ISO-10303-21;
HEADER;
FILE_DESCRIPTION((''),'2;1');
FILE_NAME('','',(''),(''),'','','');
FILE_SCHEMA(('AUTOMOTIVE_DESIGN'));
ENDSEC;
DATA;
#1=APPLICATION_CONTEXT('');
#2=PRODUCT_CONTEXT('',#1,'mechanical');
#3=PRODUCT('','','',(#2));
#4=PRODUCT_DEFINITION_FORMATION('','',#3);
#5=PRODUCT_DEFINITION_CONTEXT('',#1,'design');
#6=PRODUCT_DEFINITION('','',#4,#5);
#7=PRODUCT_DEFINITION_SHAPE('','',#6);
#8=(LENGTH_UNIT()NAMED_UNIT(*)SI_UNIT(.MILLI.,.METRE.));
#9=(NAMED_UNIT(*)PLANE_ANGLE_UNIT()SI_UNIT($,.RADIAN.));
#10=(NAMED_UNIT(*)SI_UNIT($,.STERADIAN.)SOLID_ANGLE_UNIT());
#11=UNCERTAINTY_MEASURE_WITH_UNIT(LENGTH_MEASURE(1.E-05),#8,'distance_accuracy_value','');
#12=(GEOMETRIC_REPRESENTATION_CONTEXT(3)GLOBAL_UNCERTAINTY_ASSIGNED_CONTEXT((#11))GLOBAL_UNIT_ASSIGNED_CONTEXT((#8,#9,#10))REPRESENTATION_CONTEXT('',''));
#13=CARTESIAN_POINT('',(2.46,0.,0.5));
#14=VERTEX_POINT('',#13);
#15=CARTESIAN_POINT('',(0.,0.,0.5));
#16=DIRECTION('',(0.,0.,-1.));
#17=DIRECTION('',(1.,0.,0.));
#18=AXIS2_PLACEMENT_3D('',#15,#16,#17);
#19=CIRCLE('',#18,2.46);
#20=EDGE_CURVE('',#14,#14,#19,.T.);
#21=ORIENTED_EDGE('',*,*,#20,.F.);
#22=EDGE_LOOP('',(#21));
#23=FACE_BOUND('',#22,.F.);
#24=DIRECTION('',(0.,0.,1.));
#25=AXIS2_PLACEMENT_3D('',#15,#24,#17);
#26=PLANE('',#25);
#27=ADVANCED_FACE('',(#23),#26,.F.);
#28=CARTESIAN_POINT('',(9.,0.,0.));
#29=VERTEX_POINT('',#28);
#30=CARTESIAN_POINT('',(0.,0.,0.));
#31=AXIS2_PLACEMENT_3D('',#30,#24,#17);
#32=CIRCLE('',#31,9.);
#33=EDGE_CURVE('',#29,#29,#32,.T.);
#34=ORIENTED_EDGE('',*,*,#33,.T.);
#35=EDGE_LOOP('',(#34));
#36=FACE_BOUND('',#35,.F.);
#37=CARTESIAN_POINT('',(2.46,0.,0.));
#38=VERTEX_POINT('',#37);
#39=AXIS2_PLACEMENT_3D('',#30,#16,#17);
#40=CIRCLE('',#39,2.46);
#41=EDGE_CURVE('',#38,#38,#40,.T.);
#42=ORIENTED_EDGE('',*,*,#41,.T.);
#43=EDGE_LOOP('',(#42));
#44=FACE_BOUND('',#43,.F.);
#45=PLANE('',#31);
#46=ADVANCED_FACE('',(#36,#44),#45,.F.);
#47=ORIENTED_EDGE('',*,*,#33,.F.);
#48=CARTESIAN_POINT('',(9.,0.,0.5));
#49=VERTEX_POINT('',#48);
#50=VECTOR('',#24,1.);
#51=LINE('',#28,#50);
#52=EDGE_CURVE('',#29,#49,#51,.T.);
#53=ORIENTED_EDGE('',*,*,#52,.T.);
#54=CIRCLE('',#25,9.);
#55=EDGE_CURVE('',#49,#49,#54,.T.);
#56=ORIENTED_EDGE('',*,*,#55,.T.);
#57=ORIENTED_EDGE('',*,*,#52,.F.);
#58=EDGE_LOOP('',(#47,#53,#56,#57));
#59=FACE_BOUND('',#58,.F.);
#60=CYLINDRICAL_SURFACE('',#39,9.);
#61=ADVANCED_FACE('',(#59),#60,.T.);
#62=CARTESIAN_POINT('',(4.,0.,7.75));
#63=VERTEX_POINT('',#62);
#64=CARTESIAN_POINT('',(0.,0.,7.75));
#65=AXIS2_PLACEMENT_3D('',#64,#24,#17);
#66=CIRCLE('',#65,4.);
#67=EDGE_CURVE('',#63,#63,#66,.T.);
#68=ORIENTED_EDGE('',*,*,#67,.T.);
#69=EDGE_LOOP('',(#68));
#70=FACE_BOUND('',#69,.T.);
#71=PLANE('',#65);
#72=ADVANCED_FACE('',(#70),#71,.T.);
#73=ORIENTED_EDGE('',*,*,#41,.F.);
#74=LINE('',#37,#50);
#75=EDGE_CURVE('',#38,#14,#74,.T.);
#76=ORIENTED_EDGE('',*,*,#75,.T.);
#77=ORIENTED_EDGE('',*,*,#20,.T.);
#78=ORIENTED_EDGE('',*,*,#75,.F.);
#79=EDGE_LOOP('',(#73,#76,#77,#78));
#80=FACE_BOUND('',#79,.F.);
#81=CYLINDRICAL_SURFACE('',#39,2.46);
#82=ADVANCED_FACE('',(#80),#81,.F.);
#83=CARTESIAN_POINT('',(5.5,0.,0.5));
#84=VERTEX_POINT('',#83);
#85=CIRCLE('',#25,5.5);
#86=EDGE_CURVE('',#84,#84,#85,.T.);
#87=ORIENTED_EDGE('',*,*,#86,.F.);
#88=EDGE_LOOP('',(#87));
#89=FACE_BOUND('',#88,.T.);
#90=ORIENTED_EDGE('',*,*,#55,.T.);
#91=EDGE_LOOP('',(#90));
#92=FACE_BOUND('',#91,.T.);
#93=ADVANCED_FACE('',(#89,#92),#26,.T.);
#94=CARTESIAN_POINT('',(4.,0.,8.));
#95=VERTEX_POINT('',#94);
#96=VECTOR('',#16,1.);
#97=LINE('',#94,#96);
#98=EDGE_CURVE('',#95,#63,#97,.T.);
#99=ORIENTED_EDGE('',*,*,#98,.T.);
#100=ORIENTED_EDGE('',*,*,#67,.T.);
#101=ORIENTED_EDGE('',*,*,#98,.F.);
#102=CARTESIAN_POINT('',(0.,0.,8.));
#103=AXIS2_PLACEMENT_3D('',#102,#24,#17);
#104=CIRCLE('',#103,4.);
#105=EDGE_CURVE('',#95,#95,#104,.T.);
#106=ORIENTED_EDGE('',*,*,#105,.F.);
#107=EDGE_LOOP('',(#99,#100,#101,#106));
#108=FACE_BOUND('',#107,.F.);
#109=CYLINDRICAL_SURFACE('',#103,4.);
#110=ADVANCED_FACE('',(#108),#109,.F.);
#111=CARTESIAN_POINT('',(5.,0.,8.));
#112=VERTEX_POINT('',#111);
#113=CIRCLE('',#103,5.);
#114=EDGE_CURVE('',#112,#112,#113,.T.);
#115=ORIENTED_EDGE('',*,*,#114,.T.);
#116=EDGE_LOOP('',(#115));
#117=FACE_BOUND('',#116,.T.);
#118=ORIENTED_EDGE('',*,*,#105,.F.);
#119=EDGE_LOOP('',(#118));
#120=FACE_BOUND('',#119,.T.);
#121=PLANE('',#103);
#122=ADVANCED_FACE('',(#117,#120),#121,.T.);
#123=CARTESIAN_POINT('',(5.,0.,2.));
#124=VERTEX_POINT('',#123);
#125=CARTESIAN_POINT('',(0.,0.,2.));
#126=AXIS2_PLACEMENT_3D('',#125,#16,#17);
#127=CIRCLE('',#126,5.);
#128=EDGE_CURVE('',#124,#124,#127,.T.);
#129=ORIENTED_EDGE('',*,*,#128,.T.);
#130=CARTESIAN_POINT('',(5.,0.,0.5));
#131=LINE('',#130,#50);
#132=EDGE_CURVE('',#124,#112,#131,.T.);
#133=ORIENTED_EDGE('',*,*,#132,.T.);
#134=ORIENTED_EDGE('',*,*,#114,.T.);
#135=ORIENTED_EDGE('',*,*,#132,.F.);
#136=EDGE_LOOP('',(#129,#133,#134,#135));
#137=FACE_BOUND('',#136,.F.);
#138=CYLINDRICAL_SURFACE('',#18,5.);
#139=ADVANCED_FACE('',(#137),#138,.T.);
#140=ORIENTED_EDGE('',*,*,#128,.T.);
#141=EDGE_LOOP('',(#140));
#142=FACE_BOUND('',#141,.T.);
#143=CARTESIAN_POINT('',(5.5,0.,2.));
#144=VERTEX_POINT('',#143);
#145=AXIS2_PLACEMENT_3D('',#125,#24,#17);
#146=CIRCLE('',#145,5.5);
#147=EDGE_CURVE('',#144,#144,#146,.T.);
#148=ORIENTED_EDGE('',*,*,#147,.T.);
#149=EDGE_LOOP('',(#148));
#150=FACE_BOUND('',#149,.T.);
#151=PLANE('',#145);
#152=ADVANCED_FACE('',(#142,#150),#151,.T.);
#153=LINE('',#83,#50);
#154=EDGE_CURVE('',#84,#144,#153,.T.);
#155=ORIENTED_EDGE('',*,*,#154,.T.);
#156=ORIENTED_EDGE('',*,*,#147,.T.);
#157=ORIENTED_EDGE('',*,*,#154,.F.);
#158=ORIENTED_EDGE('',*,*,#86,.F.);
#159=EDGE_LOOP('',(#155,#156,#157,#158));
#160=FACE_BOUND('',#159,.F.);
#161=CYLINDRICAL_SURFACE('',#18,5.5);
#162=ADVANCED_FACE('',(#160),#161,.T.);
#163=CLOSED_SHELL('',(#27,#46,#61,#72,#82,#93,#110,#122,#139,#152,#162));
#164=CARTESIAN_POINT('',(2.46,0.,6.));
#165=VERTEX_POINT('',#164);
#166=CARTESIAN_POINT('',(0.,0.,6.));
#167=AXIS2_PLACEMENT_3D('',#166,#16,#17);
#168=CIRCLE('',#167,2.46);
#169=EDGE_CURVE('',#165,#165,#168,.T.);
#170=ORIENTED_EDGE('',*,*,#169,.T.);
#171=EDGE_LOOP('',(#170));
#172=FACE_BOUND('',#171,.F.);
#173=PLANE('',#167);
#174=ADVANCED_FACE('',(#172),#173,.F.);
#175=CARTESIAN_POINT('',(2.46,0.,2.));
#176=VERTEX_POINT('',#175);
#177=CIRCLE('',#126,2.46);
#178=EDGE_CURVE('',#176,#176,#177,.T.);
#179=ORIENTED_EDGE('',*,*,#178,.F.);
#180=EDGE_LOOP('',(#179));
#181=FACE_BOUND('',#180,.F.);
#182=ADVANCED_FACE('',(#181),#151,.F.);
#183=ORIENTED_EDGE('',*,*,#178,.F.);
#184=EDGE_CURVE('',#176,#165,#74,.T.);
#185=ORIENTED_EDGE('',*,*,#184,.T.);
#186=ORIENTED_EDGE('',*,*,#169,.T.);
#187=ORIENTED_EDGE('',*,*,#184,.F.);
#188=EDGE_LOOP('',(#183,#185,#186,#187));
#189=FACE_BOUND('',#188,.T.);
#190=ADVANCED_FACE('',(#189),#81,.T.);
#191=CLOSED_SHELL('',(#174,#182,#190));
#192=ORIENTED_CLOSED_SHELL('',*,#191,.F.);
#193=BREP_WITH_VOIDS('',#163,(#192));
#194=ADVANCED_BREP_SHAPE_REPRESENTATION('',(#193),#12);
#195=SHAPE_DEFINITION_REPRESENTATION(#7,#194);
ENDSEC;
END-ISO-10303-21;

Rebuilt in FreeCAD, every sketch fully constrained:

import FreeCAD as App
import Part
import Sketcher

V = App.Vector

doc = App.newDocument("Part")
params = doc.addObject("Spreadsheet::Sheet", "Params")
for row, (alias, value) in enumerate([
    ("sketch1_diameter", "18 mm"),
    ("pad1_length", "0.5 mm"),
    ("sketch2_diameter", "10 mm"),
    ("pad2_length", "8 mm"),
    ("sketch3_diameter", "4.92 mm"),
    ("pocket1_length", "6 mm"),
    ("sketch4_diameter", "10 mm"),
    ("pocket2_length", "0.5 mm"),
    ("sketch5_diameter", "11 mm"),
    ("pad3_length", "1.5 mm"),
    ("sketch6_diameter", "8 mm"),
    ("pocket3_length", "0.25 mm"),
], start=1):
    params.set(f"A{row}", alias)
    params.set(f"B{row}", "=" + value)
    params.setAlias(f"B{row}", alias)

body = doc.addObject("PartDesign::Body", "Body")

sketch1 = body.newObject("Sketcher::SketchObject", "Sketch")
sketch1.AttachmentSupport = (doc.getObject("XY_Plane"), [""])
sketch1.MapMode = "FlatFace"
sketch1.addGeometry(Part.Circle(V(0, 0, 0), V(0, 0, 1), 9), False)
sketch1.addConstraint(Sketcher.Constraint("Coincident", 0, 3, -1, 1))
sketch1.addConstraint(Sketcher.Constraint("Diameter", 0, 18.0))
sketch1.setExpression("Constraints[1]", "Params.sketch1_diameter")
pad1 = body.newObject("PartDesign::Pad", "Pad")
pad1.Profile = sketch1
pad1.setExpression("Length", "Params.pad1_length")

sketch2 = body.newObject("Sketcher::SketchObject", "Sketch001")
sketch2.AttachmentSupport = (doc.getObject("XY_Plane"), [""])
sketch2.MapMode = "FlatFace"
sketch2.AttachmentOffset = App.Placement(V(0, 0, 0.5), App.Rotation())
sketch2.addGeometry(Part.Circle(V(0, 0, 0), V(0, 0, 1), 5), False)
sketch2.addConstraint(Sketcher.Constraint("Coincident", 0, 3, -1, 1))
sketch2.addConstraint(Sketcher.Constraint("Diameter", 0, 10.0))
sketch2.setExpression("Constraints[1]", "Params.sketch2_diameter")
pad2 = body.newObject("PartDesign::Pad", "Pad001")
pad2.Profile = sketch2
pad2.setExpression("Length", "Params.pad2_length")

sketch3 = body.newObject("Sketcher::SketchObject", "Sketch002")
sketch3.AttachmentSupport = (doc.getObject("XY_Plane"), [""])
sketch3.MapMode = "FlatFace"
sketch3.addGeometry(Part.Circle(V(0, 0, 0), V(0, 0, 1), 2.46), False)
sketch3.addConstraint(Sketcher.Constraint("Coincident", 0, 3, -1, 1))
sketch3.addConstraint(Sketcher.Constraint("Diameter", 0, 4.92))
sketch3.setExpression("Constraints[1]", "Params.sketch3_diameter")
pocket1 = body.newObject("PartDesign::Pocket", "Pocket")
pocket1.Profile = sketch3
pocket1.setExpression("Length", "Params.pocket1_length")
pocket1.Reversed = True

sketch4 = body.newObject("Sketcher::SketchObject", "Sketch003")
sketch4.AttachmentSupport = (doc.getObject("XY_Plane"), [""])
sketch4.MapMode = "FlatFace"
sketch4.AttachmentOffset = App.Placement(V(0, 0, 8.5), App.Rotation())
sketch4.addGeometry(Part.Circle(V(0, 0, 0), V(0, 0, 1), 5), False)
sketch4.addConstraint(Sketcher.Constraint("Coincident", 0, 3, -1, 1))
sketch4.addConstraint(Sketcher.Constraint("Diameter", 0, 10.0))
sketch4.setExpression("Constraints[1]", "Params.sketch4_diameter")
pocket2 = body.newObject("PartDesign::Pocket", "Pocket001")
pocket2.Profile = sketch4
pocket2.setExpression("Length", "Params.pocket2_length")

sketch5 = body.newObject("Sketcher::SketchObject", "Sketch004")
sketch5.AttachmentSupport = (doc.getObject("XY_Plane"), [""])
sketch5.MapMode = "FlatFace"
sketch5.AttachmentOffset = App.Placement(V(0, 0, 0.5), App.Rotation())
sketch5.addGeometry(Part.Circle(V(0, 0, 0), V(0, 0, 1), 5.5), False)
sketch5.addConstraint(Sketcher.Constraint("Coincident", 0, 3, -1, 1))
sketch5.addConstraint(Sketcher.Constraint("Diameter", 0, 11.0))
sketch5.setExpression("Constraints[1]", "Params.sketch5_diameter")
pad3 = body.newObject("PartDesign::Pad", "Pad002")
pad3.Profile = sketch5
pad3.setExpression("Length", "Params.pad3_length")

sketch6 = body.newObject("Sketcher::SketchObject", "Sketch005")
sketch6.AttachmentSupport = (doc.getObject("XY_Plane"), [""])
sketch6.MapMode = "FlatFace"
sketch6.AttachmentOffset = App.Placement(V(0, 0, 8), App.Rotation())
sketch6.addGeometry(Part.Circle(V(0, 0, 0), V(0, 0, 1), 4), False)
sketch6.addConstraint(Sketcher.Constraint("Coincident", 0, 3, -1, 1))
sketch6.addConstraint(Sketcher.Constraint("Diameter", 0, 8.0))
sketch6.setExpression("Constraints[1]", "Params.sketch6_diameter")
pocket3 = body.newObject("PartDesign::Pocket", "Pocket002")
pocket3.Profile = sketch6
pocket3.setExpression("Length", "Params.pocket3_length")

doc.recompute()
